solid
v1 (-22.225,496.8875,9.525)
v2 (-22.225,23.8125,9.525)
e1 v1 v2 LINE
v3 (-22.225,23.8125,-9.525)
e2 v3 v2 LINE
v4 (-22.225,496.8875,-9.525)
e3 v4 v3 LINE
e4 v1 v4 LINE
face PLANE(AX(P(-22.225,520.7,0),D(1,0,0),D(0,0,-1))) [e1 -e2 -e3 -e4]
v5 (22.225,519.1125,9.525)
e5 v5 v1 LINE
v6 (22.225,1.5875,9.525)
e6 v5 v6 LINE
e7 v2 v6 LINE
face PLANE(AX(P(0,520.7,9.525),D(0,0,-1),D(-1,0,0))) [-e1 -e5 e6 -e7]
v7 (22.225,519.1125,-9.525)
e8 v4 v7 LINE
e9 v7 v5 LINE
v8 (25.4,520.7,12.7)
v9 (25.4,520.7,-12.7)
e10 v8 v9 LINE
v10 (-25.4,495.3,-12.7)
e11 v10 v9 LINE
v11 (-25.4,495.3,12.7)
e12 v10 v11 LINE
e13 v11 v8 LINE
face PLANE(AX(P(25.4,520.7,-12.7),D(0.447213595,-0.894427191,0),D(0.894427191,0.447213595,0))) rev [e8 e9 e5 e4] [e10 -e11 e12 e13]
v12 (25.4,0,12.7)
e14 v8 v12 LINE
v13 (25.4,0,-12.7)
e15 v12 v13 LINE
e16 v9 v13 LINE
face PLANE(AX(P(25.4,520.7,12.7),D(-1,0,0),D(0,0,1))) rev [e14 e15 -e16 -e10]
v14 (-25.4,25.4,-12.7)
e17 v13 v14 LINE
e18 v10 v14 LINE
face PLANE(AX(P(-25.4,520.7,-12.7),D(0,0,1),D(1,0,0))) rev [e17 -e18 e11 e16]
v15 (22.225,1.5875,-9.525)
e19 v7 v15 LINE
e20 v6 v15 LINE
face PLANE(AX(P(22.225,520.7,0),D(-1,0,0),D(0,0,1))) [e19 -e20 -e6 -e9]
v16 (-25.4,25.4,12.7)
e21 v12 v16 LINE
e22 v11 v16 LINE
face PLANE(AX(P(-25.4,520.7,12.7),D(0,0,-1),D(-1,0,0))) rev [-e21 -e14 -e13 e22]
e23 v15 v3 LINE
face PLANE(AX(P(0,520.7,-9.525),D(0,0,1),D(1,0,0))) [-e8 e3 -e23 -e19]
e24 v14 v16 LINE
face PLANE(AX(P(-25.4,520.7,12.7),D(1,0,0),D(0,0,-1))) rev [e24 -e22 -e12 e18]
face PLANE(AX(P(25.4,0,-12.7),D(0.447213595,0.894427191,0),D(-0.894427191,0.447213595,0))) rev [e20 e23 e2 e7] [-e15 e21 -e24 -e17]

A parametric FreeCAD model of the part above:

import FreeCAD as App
import Part
import Sketcher
Q = App.Units.Quantity

doc = App.newDocument("Part")
body = doc.addObject("PartDesign::Body", "Body")

sketch1 = body.newObject("Sketcher::SketchObject", "Sketch")
sketch1.AttachmentSupport = (doc.getObject("XZ_Plane"), [""])
sketch1.MapMode = "FlatFace"
sketch1.addGeometry([
    Part.LineSegment(App.Vector(-25, -13, 0), App.Vector(-25, 13, 0)),
    Part.LineSegment(App.Vector(-25, 13, 0), App.Vector(25, 13, 0)),
    Part.LineSegment(App.Vector(25, 13, 0), App.Vector(25, -13, 0)),
    Part.LineSegment(App.Vector(25, -13, 0), App.Vector(-25, -13, 0)),
    Part.LineSegment(App.Vector(22, 10, 0), App.Vector(-22, 10, 0)),
    Part.LineSegment(App.Vector(-22, 10, 0), App.Vector(-22, -10, 0)),
    Part.LineSegment(App.Vector(-22, -10, 0), App.Vector(22, -10, 0)),
    Part.LineSegment(App.Vector(22, -10, 0), App.Vector(22, 10, 0)),
], False)
sketch1.addConstraint([
    Sketcher.Constraint("Coincident", 0, 2, 1, 1),
    Sketcher.Constraint("Coincident", 1, 2, 2, 1),
    Sketcher.Constraint("Coincident", 2, 2, 3, 1),
    Sketcher.Constraint("Coincident", 3, 2, 0, 1),
    Sketcher.Constraint("Coincident", 4, 2, 5, 1),
    Sketcher.Constraint("Coincident", 5, 2, 6, 1),
    Sketcher.Constraint("Coincident", 6, 2, 7, 1),
    Sketcher.Constraint("Coincident", 7, 2, 4, 1),
    Sketcher.Constraint("Vertical", 0),
    Sketcher.Constraint("Horizontal", 1),
    Sketcher.Constraint("Vertical", 2),
    Sketcher.Constraint("Horizontal", 3),
    Sketcher.Constraint("Horizontal", 4),
    Sketcher.Constraint("Vertical", 5),
    Sketcher.Constraint("Horizontal", 6),
    Sketcher.Constraint("Vertical", 7),
    Sketcher.Constraint("Symmetric", 0, 2, 2, 2, -1, 1),
    Sketcher.Constraint("Symmetric", 4, 2, 6, 2, -1, 1),
    Sketcher.Constraint("DistanceX", 1, 1, 1, 2, Q("2 in")),
    Sketcher.Constraint("DistanceY", 0, 1, 0, 2, Q("1 in")),
    Sketcher.Constraint("DistanceX", 4, 2, 4, 1, Q("1.75 in")),
    Sketcher.Constraint("DistanceY", 5, 2, 5, 1, Q("0.75 in")),
])
pad1 = body.newObject("PartDesign::Pad", "Pad")
pad1.Profile = sketch1
pad1.Length = Q("20.5 in")
pad1.Reversed = True

sketch2 = body.newObject("Sketcher::SketchObject", "Sketch001")
sketch2.AttachmentSupport = (doc.getObject("XY_Plane"), [""])
sketch2.MapMode = "FlatFace"
sketch2.AttachmentOffset = App.Placement(App.Vector(0, 0, 0.5 * 25.4), App.Rotation())
sketch2.addGeometry([
    Part.LineSegment(App.Vector(25, 0, 0), App.Vector(-25, 25, 0)),
    Part.LineSegment(App.Vector(-25, 25, 0), App.Vector(-25, 0, 0)),
    Part.LineSegment(App.Vector(-25, 0, 0), App.Vector(25, 0, 0)),
    Part.LineSegment(App.Vector(25, 521, 0), App.Vector(-25, 521, 0)),
    Part.LineSegment(App.Vector(-25, 521, 0), App.Vector(-25, 495, 0)),
    Part.LineSegment(App.Vector(-25, 495, 0), App.Vector(25, 521, 0)),
], False)
sketch2.addConstraint([
    Sketcher.Constraint("Coincident", 0, 2, 1, 1),
    Sketcher.Constraint("Coincident", 1, 2, 2, 1),
    Sketcher.Constraint("Coincident", 2, 2, 0, 1),
    Sketcher.Constraint("Coincident", 3, 2, 4, 1),
    Sketcher.Constraint("Coincident", 4, 2, 5, 1),
    Sketcher.Constraint("Coincident", 5, 2, 3, 1),
    Sketcher.Constraint("Vertical", 1),
    Sketcher.Constraint("Horizontal", 2),
    Sketcher.Constraint("Horizontal", 3),
    Sketcher.Constraint("Vertical", 4),
    Sketcher.Constraint("Symmetric", 1, 2, 2, 2, -1, 1),
    Sketcher.Constraint("Vertical", 1, 2, 3, 2),
    Sketcher.Constraint("Vertical", 2, 2, 5, 2),
    Sketcher.Constraint("Equal", 1, 4),
    Sketcher.Constraint("DistanceX", 2, 1, 2, 2, Q("2 in")),
    Sketcher.Constraint("DistanceY", 1, 2, 1, 1, Q("1 in")),
    Sketcher.Constraint("DistanceY", -1, 1, 3, 2, Q("20.5 in")),
])
pocket1 = body.newObject("PartDesign::Pocket", "Pocket")
pocket1.Profile = sketch2
pocket1.Type = "ThroughAll"

doc.recompute()
